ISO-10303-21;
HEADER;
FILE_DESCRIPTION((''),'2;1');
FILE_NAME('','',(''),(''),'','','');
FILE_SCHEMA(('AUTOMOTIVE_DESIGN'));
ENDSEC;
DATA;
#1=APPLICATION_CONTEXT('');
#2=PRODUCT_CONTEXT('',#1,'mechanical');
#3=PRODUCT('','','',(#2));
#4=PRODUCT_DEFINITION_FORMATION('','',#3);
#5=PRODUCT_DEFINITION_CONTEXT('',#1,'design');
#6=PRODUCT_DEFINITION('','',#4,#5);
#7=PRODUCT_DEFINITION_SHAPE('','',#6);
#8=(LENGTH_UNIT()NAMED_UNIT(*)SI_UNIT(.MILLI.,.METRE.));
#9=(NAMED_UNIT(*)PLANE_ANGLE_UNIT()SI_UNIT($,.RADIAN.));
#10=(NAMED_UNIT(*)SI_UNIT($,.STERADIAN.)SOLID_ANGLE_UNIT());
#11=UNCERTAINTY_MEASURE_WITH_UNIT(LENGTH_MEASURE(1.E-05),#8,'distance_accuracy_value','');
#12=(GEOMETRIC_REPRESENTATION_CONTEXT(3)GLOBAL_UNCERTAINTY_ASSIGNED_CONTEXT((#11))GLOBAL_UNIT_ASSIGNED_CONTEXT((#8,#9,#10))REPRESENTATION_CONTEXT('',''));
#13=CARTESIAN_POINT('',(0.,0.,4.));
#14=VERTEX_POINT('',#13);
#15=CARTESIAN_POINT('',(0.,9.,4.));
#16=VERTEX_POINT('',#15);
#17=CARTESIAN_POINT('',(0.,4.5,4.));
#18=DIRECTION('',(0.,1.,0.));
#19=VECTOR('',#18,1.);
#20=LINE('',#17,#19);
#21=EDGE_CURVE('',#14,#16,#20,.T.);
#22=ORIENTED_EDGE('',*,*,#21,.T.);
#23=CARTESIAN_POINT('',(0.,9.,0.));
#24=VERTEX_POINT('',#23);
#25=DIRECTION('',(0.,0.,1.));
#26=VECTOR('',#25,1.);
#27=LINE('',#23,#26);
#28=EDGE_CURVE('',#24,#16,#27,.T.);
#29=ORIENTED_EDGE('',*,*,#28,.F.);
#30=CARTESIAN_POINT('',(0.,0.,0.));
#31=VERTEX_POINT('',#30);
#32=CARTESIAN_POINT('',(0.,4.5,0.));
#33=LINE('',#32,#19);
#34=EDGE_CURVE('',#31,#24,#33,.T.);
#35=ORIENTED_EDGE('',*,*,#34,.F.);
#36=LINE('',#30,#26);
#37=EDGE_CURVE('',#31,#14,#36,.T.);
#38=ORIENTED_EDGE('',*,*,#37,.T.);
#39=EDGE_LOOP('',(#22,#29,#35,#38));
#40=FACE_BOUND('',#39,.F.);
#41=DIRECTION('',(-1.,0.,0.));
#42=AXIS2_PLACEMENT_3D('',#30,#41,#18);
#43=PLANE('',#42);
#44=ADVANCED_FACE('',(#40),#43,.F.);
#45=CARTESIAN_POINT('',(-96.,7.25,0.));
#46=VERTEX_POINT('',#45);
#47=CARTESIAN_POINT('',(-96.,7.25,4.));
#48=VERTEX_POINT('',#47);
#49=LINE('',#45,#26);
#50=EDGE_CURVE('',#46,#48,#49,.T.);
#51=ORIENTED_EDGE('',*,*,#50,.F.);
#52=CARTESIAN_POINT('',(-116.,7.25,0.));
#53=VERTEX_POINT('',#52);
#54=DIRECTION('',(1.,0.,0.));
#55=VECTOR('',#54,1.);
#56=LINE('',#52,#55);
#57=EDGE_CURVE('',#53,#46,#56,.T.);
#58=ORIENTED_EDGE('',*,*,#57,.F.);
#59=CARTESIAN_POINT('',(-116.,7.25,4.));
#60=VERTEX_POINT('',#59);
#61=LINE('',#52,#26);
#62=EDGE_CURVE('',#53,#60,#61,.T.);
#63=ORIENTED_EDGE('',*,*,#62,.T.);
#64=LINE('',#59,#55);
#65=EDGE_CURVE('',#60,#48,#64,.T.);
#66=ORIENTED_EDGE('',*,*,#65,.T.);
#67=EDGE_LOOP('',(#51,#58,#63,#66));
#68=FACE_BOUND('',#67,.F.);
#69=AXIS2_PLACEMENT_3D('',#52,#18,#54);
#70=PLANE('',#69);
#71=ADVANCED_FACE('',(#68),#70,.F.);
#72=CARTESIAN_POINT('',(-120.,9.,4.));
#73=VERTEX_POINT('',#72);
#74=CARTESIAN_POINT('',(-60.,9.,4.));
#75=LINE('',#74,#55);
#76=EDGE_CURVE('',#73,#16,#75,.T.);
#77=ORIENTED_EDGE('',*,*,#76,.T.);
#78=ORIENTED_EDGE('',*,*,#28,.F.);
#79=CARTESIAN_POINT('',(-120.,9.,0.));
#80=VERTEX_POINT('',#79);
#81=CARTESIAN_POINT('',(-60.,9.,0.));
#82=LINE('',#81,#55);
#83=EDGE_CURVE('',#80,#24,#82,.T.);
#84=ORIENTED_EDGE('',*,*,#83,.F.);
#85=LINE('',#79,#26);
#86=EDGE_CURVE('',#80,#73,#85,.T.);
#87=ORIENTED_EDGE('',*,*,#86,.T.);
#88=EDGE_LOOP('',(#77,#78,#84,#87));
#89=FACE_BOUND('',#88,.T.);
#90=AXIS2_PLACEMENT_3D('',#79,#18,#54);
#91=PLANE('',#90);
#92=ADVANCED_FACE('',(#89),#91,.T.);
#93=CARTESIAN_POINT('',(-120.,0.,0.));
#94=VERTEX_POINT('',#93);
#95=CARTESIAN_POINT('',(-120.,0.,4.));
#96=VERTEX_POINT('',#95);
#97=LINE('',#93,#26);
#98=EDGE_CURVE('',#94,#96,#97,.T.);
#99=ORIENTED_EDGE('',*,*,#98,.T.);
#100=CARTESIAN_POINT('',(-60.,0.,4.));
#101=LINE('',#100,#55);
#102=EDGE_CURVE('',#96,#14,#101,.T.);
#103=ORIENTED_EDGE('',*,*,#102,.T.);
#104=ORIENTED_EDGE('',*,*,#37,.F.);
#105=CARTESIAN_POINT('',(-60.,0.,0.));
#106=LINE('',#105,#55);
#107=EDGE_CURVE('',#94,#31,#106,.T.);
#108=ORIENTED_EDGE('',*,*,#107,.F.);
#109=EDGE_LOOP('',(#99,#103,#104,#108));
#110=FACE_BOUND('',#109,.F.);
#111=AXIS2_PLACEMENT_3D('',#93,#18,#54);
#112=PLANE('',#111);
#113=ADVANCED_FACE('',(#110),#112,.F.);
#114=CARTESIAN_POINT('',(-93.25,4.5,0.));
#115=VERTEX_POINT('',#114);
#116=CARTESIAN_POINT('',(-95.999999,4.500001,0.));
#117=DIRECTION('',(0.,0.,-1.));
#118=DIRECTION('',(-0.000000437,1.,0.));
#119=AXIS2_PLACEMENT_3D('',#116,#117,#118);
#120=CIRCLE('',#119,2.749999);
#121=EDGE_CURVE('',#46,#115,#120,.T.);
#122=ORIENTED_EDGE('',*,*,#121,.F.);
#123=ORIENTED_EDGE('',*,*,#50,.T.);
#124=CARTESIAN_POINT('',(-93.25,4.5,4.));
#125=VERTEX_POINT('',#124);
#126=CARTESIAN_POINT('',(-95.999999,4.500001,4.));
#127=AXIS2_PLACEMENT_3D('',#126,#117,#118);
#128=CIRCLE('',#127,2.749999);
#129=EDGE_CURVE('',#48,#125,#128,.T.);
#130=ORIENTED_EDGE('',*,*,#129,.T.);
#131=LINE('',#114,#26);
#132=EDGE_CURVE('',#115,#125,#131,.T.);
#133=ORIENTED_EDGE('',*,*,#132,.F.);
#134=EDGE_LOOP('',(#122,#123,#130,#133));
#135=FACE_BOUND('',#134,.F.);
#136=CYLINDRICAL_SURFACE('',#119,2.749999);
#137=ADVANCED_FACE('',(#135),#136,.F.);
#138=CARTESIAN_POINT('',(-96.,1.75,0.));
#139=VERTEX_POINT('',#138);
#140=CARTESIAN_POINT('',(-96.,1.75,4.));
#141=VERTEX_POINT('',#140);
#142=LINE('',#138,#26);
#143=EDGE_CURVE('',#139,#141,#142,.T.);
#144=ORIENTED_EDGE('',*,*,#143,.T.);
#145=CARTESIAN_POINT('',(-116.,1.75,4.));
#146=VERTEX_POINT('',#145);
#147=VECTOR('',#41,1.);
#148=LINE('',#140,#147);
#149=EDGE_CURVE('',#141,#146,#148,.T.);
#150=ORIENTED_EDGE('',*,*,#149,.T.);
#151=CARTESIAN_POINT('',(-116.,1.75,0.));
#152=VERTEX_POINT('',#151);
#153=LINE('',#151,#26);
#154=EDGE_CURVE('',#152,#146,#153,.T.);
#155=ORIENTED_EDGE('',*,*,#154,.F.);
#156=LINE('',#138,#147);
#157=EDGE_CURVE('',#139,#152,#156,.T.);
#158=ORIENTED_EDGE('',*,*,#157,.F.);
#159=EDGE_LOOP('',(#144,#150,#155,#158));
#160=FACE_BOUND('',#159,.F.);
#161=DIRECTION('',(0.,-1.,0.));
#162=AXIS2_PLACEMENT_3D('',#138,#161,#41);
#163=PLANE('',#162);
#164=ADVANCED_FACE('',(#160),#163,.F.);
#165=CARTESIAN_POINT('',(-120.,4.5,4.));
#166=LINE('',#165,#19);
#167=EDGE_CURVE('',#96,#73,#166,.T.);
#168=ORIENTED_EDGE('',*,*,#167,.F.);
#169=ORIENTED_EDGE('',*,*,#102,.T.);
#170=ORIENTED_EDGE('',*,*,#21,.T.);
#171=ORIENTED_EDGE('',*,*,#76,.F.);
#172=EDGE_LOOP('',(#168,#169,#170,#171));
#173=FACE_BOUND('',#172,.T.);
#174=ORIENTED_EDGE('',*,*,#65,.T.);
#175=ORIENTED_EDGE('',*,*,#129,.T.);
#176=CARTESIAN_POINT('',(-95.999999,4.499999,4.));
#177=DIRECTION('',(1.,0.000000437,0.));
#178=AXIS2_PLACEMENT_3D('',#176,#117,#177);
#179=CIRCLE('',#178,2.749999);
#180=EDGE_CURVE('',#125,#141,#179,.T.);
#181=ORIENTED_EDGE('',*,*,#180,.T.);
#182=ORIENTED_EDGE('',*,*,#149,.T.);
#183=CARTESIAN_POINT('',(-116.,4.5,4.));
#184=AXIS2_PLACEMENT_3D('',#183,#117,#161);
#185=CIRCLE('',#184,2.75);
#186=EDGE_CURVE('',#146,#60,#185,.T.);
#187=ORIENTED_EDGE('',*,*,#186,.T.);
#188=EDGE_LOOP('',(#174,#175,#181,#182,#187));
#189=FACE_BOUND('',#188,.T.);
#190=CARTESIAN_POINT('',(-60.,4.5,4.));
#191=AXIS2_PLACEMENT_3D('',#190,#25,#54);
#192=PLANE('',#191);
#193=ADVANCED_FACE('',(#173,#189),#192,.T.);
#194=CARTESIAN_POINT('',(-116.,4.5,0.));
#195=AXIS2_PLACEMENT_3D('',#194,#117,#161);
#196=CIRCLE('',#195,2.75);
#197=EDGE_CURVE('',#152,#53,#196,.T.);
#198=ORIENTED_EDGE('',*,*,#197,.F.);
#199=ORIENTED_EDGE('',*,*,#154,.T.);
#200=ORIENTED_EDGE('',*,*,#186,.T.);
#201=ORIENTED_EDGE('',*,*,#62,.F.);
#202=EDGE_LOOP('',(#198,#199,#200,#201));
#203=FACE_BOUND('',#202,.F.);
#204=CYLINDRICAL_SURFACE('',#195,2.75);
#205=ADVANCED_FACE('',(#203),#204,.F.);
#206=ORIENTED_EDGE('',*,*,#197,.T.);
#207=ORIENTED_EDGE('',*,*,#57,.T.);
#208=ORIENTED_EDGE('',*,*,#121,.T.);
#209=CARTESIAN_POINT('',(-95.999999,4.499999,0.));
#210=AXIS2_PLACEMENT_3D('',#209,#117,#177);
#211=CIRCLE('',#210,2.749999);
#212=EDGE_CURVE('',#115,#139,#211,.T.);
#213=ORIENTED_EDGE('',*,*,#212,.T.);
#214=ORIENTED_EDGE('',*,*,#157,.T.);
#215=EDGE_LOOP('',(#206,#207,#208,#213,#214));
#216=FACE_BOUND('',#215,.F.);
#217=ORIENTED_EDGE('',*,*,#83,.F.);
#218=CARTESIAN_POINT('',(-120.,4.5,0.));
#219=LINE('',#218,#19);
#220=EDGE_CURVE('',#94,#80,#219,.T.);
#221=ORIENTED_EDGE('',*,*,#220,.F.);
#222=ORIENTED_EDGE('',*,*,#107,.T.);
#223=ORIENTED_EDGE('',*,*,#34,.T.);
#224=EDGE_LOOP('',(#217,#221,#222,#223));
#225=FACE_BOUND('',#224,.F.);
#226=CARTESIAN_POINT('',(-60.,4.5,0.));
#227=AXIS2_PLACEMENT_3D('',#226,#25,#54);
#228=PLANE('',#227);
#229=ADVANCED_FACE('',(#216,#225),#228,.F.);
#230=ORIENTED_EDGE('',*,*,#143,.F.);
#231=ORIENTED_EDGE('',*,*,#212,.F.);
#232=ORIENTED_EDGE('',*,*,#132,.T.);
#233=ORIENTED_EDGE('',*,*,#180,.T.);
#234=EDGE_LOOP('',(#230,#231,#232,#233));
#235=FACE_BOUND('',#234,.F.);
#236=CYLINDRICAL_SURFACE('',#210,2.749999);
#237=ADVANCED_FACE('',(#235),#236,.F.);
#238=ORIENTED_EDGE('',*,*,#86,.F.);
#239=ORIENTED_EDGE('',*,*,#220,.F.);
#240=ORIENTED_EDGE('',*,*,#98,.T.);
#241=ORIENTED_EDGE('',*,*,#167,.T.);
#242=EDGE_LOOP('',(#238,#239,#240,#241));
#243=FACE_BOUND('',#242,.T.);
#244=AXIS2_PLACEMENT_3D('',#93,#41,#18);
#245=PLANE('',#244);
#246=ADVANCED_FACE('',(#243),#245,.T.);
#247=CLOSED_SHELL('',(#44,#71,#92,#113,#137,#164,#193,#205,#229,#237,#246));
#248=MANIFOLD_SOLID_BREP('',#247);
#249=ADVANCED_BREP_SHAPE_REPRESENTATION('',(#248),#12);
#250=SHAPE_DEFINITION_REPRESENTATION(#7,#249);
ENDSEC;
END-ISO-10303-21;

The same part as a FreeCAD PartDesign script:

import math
import FreeCAD as App
import Part
import Sketcher

V = App.Vector
Q = App.Units.Quantity


def add_polygon(sketch, points):
    """Adds a closed chain of lines whose ends are joined by coincident constraints."""
    first, n = sketch.GeometryCount, len(points)
    for a, b in zip(points, points[1:] + points[:1]):
        sketch.addGeometry(Part.LineSegment(App.Vector(*a, 0), App.Vector(*b, 0)), False)
    for i in range(n):
        sketch.addConstraint(Sketcher.Constraint("Coincident", first + i, 2, first + (i + 1) % n, 1))

doc = App.newDocument("Part")
body = doc.addObject("PartDesign::Body", "Body")

sketch1 = body.newObject("Sketcher::SketchObject", "Sketch")
sketch1.AttachmentSupport = (doc.getObject("XY_Plane"), [""])
sketch1.MapMode = "FlatFace"
add_polygon(sketch1, [(-120, 9), (-120, 0), (0, 0), (0, 9)])
sketch1.addGeometry(Part.LineSegment(V(-96, 1.75, 0), V(-116, 1.75, 0)), False)
sketch1.addGeometry(Part.ArcOfCircle(Part.Circle(V(-116, 4.5, 0), V(0, 0, 1), 2.75), math.radians(90), math.radians(270)), False)
sketch1.addGeometry(Part.LineSegment(V(-116, 7.25, 0), V(-96, 7.25, 0)), False)
sketch1.addGeometry(Part.ArcOfCircle(Part.Circle(V(-95.999999, 4.500001, 0), V(0, 0, 1), 2.749999), math.radians(-0.000025), math.radians(90.000025)), False)
sketch1.addGeometry(Part.ArcOfCircle(Part.Circle(V(-95.999999, 4.499999, 0), V(0, 0, 1), 2.749999), math.radians(-90.000025), math.radians(0.000025)), False)
sketch1.addConstraint([
    Sketcher.Constraint("Tangent", 4, 2, 5, 2),
    Sketcher.Constraint("Tangent", 5, 1, 6, 1),
    Sketcher.Constraint("Tangent", 6, 2, 7, 2),
    Sketcher.Constraint("Tangent", 7, 1, 8, 2),
    Sketcher.Constraint("Tangent", 8, 1, 4, 1),
    Sketcher.Constraint("Vertical", 0),
    Sketcher.Constraint("Horizontal", 1),
    Sketcher.Constraint("Vertical", 2),
    Sketcher.Constraint("Horizontal", 3),
    Sketcher.Constraint("Horizontal", 4),
    Sketcher.Constraint("Horizontal", 6),
    Sketcher.Constraint("Coincident", 1, 2, -1, 1),
    Sketcher.Constraint("Equal", 5, 7),
    Sketcher.Constraint("Horizontal", 8, 3, 7, 1),
    Sketcher.Constraint("DistanceX", 1, 1, 1, 2, Q("120 mm")),
    Sketcher.Constraint("DistanceX", 4, 2, 4, 1, Q("20 mm")),
    Sketcher.Constraint("DistanceY", 0, 2, 0, 1, Q("9 mm")),
    Sketcher.Constraint("Radius", 5, Q("2.75 mm")),
    Sketcher.Constraint("DistanceX", 5, 3, -1, 1, Q("116 mm")),
    Sketcher.Constraint("DistanceY", -1, 1, 5, 3, Q("4.5 mm")),
])
pad1 = body.newObject("PartDesign::Pad", "Pad")
pad1.Profile = sketch1
pad1.Length = 4

doc.recompute()
